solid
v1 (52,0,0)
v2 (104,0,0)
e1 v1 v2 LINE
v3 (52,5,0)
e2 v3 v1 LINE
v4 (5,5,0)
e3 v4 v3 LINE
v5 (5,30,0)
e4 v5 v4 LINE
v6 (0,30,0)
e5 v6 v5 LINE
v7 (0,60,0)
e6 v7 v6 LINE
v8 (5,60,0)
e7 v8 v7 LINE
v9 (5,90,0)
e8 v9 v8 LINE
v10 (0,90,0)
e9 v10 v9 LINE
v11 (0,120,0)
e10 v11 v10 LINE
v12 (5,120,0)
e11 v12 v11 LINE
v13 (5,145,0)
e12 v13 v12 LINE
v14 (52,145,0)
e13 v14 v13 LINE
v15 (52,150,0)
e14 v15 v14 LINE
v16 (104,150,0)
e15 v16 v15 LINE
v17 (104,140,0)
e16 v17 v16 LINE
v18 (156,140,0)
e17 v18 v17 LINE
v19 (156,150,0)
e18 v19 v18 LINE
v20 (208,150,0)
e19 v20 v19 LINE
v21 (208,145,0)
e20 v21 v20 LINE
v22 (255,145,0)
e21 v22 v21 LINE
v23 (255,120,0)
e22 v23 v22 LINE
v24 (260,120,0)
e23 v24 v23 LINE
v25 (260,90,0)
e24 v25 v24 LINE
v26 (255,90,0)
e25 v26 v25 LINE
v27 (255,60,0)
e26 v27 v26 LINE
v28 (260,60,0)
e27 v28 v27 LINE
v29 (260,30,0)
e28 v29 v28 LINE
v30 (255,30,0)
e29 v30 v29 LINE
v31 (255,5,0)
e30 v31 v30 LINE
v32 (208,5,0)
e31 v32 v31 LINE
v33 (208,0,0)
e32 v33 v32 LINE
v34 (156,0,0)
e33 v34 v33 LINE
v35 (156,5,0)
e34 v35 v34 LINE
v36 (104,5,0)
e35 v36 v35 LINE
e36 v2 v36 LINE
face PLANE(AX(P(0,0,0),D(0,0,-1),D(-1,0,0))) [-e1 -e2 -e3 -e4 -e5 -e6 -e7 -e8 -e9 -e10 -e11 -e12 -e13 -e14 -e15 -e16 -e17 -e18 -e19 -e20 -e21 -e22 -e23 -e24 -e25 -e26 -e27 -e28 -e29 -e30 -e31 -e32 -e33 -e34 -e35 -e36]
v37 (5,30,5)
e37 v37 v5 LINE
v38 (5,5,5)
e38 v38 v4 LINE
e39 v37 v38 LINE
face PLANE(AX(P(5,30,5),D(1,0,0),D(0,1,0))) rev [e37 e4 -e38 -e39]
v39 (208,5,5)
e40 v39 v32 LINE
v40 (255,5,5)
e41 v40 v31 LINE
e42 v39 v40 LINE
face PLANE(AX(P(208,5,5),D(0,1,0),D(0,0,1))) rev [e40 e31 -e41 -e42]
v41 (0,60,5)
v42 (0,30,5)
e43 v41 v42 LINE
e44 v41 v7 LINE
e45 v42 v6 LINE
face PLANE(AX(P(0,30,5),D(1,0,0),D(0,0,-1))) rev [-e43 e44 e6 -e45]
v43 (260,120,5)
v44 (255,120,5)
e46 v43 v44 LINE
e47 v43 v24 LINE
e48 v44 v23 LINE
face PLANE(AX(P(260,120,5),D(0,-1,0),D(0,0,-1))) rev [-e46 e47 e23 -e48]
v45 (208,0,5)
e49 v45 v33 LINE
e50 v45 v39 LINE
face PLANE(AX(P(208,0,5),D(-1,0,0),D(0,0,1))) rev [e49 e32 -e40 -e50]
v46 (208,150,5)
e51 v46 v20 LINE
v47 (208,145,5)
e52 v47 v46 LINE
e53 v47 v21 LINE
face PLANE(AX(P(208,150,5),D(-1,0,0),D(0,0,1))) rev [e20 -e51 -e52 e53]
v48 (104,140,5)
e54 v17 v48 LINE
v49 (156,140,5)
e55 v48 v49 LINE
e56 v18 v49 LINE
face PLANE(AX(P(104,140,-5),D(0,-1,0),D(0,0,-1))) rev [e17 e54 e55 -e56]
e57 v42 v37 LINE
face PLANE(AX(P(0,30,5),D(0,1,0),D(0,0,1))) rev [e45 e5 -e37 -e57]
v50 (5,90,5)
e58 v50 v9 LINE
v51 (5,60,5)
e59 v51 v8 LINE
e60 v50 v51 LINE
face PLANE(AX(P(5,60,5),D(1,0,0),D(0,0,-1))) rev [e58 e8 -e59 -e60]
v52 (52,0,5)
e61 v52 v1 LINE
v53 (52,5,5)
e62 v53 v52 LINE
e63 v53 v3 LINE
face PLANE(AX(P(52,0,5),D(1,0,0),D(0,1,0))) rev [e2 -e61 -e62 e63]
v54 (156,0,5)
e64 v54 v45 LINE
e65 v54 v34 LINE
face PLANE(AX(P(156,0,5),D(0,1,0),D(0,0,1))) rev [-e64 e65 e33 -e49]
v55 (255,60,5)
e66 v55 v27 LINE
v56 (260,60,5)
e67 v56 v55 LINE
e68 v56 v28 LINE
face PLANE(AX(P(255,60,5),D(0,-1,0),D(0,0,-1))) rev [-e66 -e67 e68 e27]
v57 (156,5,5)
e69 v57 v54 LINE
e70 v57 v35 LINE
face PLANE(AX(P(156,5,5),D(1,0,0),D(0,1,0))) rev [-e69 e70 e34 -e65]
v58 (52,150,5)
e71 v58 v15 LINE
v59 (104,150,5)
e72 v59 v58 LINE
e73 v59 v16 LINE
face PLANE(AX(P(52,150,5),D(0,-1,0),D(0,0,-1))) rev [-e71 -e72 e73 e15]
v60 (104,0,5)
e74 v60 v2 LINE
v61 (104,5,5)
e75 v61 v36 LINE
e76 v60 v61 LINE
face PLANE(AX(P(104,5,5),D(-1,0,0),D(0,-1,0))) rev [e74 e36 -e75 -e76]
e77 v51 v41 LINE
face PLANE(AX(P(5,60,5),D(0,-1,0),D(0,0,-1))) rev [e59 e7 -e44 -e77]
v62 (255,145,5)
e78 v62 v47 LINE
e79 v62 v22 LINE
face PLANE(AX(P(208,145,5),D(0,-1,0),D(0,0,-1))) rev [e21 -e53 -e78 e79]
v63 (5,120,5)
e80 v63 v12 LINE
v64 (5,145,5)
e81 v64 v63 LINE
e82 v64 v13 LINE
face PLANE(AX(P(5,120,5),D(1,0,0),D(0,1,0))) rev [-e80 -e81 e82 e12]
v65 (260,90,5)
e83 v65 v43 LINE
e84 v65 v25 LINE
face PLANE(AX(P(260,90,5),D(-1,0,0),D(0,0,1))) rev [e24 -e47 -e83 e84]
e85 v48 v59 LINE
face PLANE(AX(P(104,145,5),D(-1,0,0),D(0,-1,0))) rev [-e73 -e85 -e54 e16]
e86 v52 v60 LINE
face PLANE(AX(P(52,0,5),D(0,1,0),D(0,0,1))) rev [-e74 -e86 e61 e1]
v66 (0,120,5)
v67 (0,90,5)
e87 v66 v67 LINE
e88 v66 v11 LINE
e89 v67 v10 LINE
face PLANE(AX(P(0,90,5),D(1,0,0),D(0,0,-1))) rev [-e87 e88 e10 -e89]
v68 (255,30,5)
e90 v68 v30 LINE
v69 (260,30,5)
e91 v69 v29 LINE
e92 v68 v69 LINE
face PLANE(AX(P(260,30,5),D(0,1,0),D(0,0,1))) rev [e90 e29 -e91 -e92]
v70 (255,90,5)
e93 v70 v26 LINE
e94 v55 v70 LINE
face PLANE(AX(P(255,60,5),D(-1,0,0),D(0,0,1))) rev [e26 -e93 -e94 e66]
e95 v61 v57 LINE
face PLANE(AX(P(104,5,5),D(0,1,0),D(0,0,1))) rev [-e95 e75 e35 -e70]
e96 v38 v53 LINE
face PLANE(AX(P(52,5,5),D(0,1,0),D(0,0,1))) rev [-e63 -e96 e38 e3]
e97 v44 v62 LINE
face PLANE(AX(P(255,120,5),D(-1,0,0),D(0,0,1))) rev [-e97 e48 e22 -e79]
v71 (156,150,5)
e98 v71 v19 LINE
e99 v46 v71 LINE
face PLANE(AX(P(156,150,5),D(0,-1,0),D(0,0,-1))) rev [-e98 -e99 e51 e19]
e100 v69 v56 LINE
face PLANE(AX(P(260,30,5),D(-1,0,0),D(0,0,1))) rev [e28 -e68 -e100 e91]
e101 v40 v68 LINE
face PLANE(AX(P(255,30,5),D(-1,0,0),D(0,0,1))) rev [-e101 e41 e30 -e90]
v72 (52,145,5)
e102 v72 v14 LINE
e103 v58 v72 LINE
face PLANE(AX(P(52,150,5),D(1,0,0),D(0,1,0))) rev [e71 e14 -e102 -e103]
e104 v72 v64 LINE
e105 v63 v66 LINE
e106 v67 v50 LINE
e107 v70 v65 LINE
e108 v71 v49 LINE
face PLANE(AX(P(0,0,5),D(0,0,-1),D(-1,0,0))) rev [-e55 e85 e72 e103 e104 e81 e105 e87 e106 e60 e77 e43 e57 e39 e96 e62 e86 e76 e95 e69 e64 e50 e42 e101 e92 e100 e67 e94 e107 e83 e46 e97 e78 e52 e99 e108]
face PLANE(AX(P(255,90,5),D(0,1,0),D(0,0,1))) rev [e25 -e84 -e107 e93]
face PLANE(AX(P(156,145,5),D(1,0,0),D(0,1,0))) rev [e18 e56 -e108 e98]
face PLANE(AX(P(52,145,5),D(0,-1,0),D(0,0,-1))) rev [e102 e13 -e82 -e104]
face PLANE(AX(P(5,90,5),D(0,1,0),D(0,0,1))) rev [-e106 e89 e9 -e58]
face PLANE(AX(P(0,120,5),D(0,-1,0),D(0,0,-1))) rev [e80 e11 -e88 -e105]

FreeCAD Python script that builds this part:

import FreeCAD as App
import Part
import Sketcher

V = App.Vector

doc = App.newDocument("Part")
body = doc.addObject("PartDesign::Body", "Body")

sketch1 = body.newObject("Sketcher::SketchObject", "Sketch")
sketch1.AttachmentSupport = (doc.getObject("XY_Plane"), [""])
sketch1.MapMode = "FlatFace"
sketch1.addGeometry(Part.LineSegment(V(52, 0, 0), V(104, 0, 0)), False)
sketch1.addGeometry(Part.LineSegment(V(104, 0, 0), V(104, 5, 0)), False)
sketch1.addGeometry(Part.LineSegment(V(104, 5, 0), V(156, 5, 0)), False)
sketch1.addGeometry(Part.LineSegment(V(156, 5, 0), V(156, 0, 0)), False)
sketch1.addGeometry(Part.LineSegment(V(156, 0, 0), V(208, 0, 0)), False)
sketch1.addGeometry(Part.LineSegment(V(208, 0, 0), V(208, 5, 0)), False)
sketch1.addGeometry(Part.LineSegment(V(208, 5, 0), V(255, 5, 0)), False)
sketch1.addGeometry(Part.LineSegment(V(255, 5, 0), V(255, 30, 0)), False)
sketch1.addGeometry(Part.LineSegment(V(255, 30, 0), V(260, 30, 0)), False)
sketch1.addGeometry(Part.LineSegment(V(260, 30, 0), V(260, 60, 0)), False)
sketch1.addGeometry(Part.LineSegment(V(260, 60, 0), V(255, 60, 0)), False)
sketch1.addGeometry(Part.LineSegment(V(255, 60, 0), V(255, 90, 0)), False)
sketch1.addGeometry(Part.LineSegment(V(255, 90, 0), V(260, 90, 0)), False)
sketch1.addGeometry(Part.LineSegment(V(260, 90, 0), V(260, 120, 0)), False)
sketch1.addGeometry(Part.LineSegment(V(260, 120, 0), V(255, 120, 0)), False)
sketch1.addGeometry(Part.LineSegment(V(255, 120, 0), V(255, 145, 0)), False)
sketch1.addGeometry(Part.LineSegment(V(255, 145, 0), V(208, 145, 0)), False)
sketch1.addGeometry(Part.LineSegment(V(208, 145, 0), V(208, 150, 0)), False)
sketch1.addGeometry(Part.LineSegment(V(208, 150, 0), V(156, 150, 0)), False)
sketch1.addGeometry(Part.LineSegment(V(156, 150, 0), V(156, 145, 0)), False)
sketch1.addGeometry(Part.LineSegment(V(156, 145, 0), V(104, 145, 0)), False)
sketch1.addGeometry(Part.LineSegment(V(104, 145, 0), V(104, 150, 0)), False)
sketch1.addGeometry(Part.LineSegment(V(104, 150, 0), V(52, 150, 0)), False)
sketch1.addGeometry(Part.LineSegment(V(52, 150, 0), V(52, 145, 0)), False)
sketch1.addGeometry(Part.LineSegment(V(52, 145, 0), V(5, 145, 0)), False)
sketch1.addGeometry(Part.LineSegment(V(5, 145, 0), V(5, 120, 0)), False)
sketch1.addGeometry(Part.LineSegment(V(5, 120, 0), V(0, 120, 0)), False)
sketch1.addGeometry(Part.LineSegment(V(0, 120, 0), V(0, 90, 0)), False)
sketch1.addGeometry(Part.LineSegment(V(0, 90, 0), V(5, 90, 0)), False)
sketch1.addGeometry(Part.LineSegment(V(5, 90, 0), V(5, 60, 0)), False)
sketch1.addGeometry(Part.LineSegment(V(5, 60, 0), V(0, 60, 0)), False)
sketch1.addGeometry(Part.LineSegment(V(0, 60, 0), V(0, 30, 0)), False)
sketch1.addGeometry(Part.LineSegment(V(0, 30, 0), V(5, 30, 0)), False)
sketch1.addGeometry(Part.LineSegment(V(5, 30, 0), V(5, 5, 0)), False)
sketch1.addGeometry(Part.LineSegment(V(5, 5, 0), V(52, 5, 0)), False)
sketch1.addGeometry(Part.LineSegment(V(52, 5, 0), V(52, 0, 0)), False)
sketch1.addConstraint(Sketcher.Constraint("Coincident", 0, 2, 1, 1))
sketch1.addConstraint(Sketcher.Constraint("Coincident", 1, 2, 2, 1))
sketch1.addConstraint(Sketcher.Constraint("Coincident", 2, 2, 3, 1))
sketch1.addConstraint(Sketcher.Constraint("Coincident", 3, 2, 4, 1))
sketch1.addConstraint(Sketcher.Constraint("Coincident", 4, 2, 5, 1))
sketch1.addConstraint(Sketcher.Constraint("Coincident", 5, 2, 6, 1))
sketch1.addConstraint(Sketcher.Constraint("Coincident", 6, 2, 7, 1))
sketch1.addConstraint(Sketcher.Constraint("Coincident", 7, 2, 8, 1))
sketch1.addConstraint(Sketcher.Constraint("Coincident", 8, 2, 9, 1))
sketch1.addConstraint(Sketcher.Constraint("Coincident", 9, 2, 10, 1))
sketch1.addConstraint(Sketcher.Constraint("Coincident", 10, 2, 11, 1))
sketch1.addConstraint(Sketcher.Constraint("Coincident", 11, 2, 12, 1))
sketch1.addConstraint(Sketcher.Constraint("Coincident", 12, 2, 13, 1))
sketch1.addConstraint(Sketcher.Constraint("Coincident", 13, 2, 14, 1))
sketch1.addConstraint(Sketcher.Constraint("Coincident", 14, 2, 15, 1))
sketch1.addConstraint(Sketcher.Constraint("Coincident", 15, 2, 16, 1))
sketch1.addConstraint(Sketcher.Constraint("Coincident", 16, 2, 17, 1))
sketch1.addConstraint(Sketcher.Constraint("Coincident", 17, 2, 18, 1))
sketch1.addConstraint(Sketcher.Constraint("Coincident", 18, 2, 19, 1))
sketch1.addConstraint(Sketcher.Constraint("Coincident", 19, 2, 20, 1))
sketch1.addConstraint(Sketcher.Constraint("Coincident", 20, 2, 21, 1))
sketch1.addConstraint(Sketcher.Constraint("Coincident", 21, 2, 22, 1))
sketch1.addConstraint(Sketcher.Constraint("Coincident", 22, 2, 23, 1))
sketch1.addConstraint(Sketcher.Constraint("Coincident", 23, 2, 24, 1))
sketch1.addConstraint(Sketcher.Constraint("Coincident", 24, 2, 25, 1))
sketch1.addConstraint(Sketcher.Constraint("Coincident", 25, 2, 26, 1))
sketch1.addConstraint(Sketcher.Constraint("Coincident", 26, 2, 27, 1))
sketch1.addConstraint(Sketcher.Constraint("Coincident", 27, 2, 28, 1))
sketch1.addConstraint(Sketcher.Constraint("Coincident", 28, 2, 29, 1))
sketch1.addConstraint(Sketcher.Constraint("Coincident", 29, 2, 30, 1))
sketch1.addConstraint(Sketcher.Constraint("Coincident", 30, 2, 31, 1))
sketch1.addConstraint(Sketcher.Constraint("Coincident", 31, 2, 32, 1))
sketch1.addConstraint(Sketcher.Constraint("Coincident", 32, 2, 33, 1))
sketch1.addConstraint(Sketcher.Constraint("Coincident", 33, 2, 34, 1))
sketch1.addConstraint(Sketcher.Constraint("Coincident", 34, 2, 35, 1))
sketch1.addConstraint(Sketcher.Constraint("Coincident", 35, 2, 0, 1))
sketch1.addConstraint(Sketcher.Constraint("Horizontal", 0))
sketch1.addConstraint(Sketcher.Constraint("Vertical", 1))
sketch1.addConstraint(Sketcher.Constraint("Horizontal", 2))
sketch1.addConstraint(Sketcher.Constraint("Vertical", 3))
sketch1.addConstraint(Sketcher.Constraint("Horizontal", 4))
sketch1.addConstraint(Sketcher.Constraint("Vertical", 5))
sketch1.addConstraint(Sketcher.Constraint("Horizontal", 6))
sketch1.addConstraint(Sketcher.Constraint("Vertical", 7))
sketch1.addConstraint(Sketcher.Constraint("Horizontal", 8))
sketch1.addConstraint(Sketcher.Constraint("Vertical", 9))
sketch1.addConstraint(Sketcher.Constraint("Horizontal", 10))
sketch1.addConstraint(Sketcher.Constraint("Vertical", 11))
sketch1.addConstraint(Sketcher.Constraint("Horizontal", 12))
sketch1.addConstraint(Sketcher.Constraint("Vertical", 13))
sketch1.addConstraint(Sketcher.Constraint("Horizontal", 14))
sketch1.addConstraint(Sketcher.Constraint("Vertical", 15))
sketch1.addConstraint(Sketcher.Constraint("Horizontal", 16))
sketch1.addConstraint(Sketcher.Constraint("Vertical", 17))
sketch1.addConstraint(Sketcher.Constraint("Horizontal", 18))
sketch1.addConstraint(Sketcher.Constraint("Vertical", 19))
sketch1.addConstraint(Sketcher.Constraint("Horizontal", 20))
sketch1.addConstraint(Sketcher.Constraint("Vertical", 21))
sketch1.addConstraint(Sketcher.Constraint("Horizontal", 22))
sketch1.addConstraint(Sketcher.Constraint("Vertical", 23))
sketch1.addConstraint(Sketcher.Constraint("Horizontal", 24))
sketch1.addConstraint(Sketcher.Constraint("Vertical", 25))
sketch1.addConstraint(Sketcher.Constraint("Horizontal", 26))
sketch1.addConstraint(Sketcher.Constraint("Vertical", 27))
sketch1.addConstraint(Sketcher.Constraint("Horizontal", 28))
sketch1.addConstraint(Sketcher.Constraint("Vertical", 29))
sketch1.addConstraint(Sketcher.Constraint("Horizontal", 30))
sketch1.addConstraint(Sketcher.Constraint("Vertical", 31))
sketch1.addConstraint(Sketcher.Constraint("Horizontal", 32))
sketch1.addConstraint(Sketcher.Constraint("Vertical", 33))
sketch1.addConstraint(Sketcher.Constraint("Horizontal", 34))
sketch1.addConstraint(Sketcher.Constraint("Vertical", 35))
sketch1.addConstraint(Sketcher.Constraint("PointOnObject", 0, 2, -1))
sketch1.addConstraint(Sketcher.Constraint("PointOnObject", 3, 2, -1))
sketch1.addConstraint(Sketcher.Constraint("PointOnObject", 26, 2, -2))
sketch1.addConstraint(Sketcher.Constraint("PointOnObject", 30, 2, -2))
sketch1.addConstraint(Sketcher.Constraint("Horizontal", 2, 2, 5, 2))
sketch1.addConstraint(Sketcher.Constraint("Horizontal", 16, 2, 19, 2))
sketch1.addConstraint(Sketcher.Constraint("Horizontal", 18, 2, 21, 2))
sketch1.addConstraint(Sketcher.Constraint("Horizontal", 20, 2, 23, 2))
sketch1.addConstraint(Sketcher.Constraint("Horizontal", 14, 2, 25, 2))
sketch1.addConstraint(Sketcher.Constraint("Horizontal", 12, 2, 27, 2))
sketch1.addConstraint(Sketcher.Constraint("Horizontal", 10, 2, 29, 2))
sketch1.addConstraint(Sketcher.Constraint("Horizontal", 8, 2, 31, 2))
sketch1.addConstraint(Sketcher.Constraint("Horizontal", 6, 2, 33, 2))
sketch1.addConstraint(Sketcher.Constraint("Vertical", 7, 2, 10, 2))
sketch1.addConstraint(Sketcher.Constraint("Vertical", 9, 2, 12, 2))
sketch1.addConstraint(Sketcher.Constraint("Vertical", 11, 2, 14, 2))
sketch1.addConstraint(Sketcher.Constraint("Vertical", 5, 2, 16, 2))
sketch1.addConstraint(Sketcher.Constraint("Vertical", 3, 2, 18, 2))
sketch1.addConstraint(Sketcher.Constraint("Vertical", 1, 2, 20, 2))
sketch1.addConstraint(Sketcher.Constraint("Vertical", 25, 2, 28, 2))
sketch1.addConstraint(Sketcher.Constraint("Vertical", 29, 2, 32, 2))
sketch1.addConstraint(Sketcher.Constraint("Vertical", 23, 2, 34, 2))
sketch1.addConstraint(Sketcher.Constraint("Equal", 0, 2))
sketch1.addConstraint(Sketcher.Constraint("Equal", 2, 4))
sketch1.addConstraint(Sketcher.Constraint("Equal", 16, 24))
sketch1.addConstraint(Sketcher.Constraint("Equal", 14, 26))
sketch1.addConstraint(Sketcher.Constraint("Equal", 32, 1))
sketch1.addConstraint(Sketcher.Constraint("Equal", 9, 11))
sketch1.addConstraint(Sketcher.Constraint("Equal", 11, 13))
sketch1.addConstraint(Sketcher.Constraint("Equal", 7, 15))
sketch1.addConstraint(Sketcher.Constraint("Equal", 5, 17))
sketch1.addConstraint(Sketcher.Constraint("DistanceX", 0, 1, 0, 2, 52.0))
sketch1.addConstraint(Sketcher.Constraint("DistanceX", 6, 1, 6, 2, 47.0))
sketch1.addConstraint(Sketcher.Constraint("DistanceX", 8, 1, 8, 2, 5.0))
sketch1.addConstraint(Sketcher.Constraint("DistanceY", 7, 1, 7, 2, 25.0))
sketch1.addConstraint(Sketcher.Constraint("DistanceY", 9, 1, 9, 2, 30.0))
pad1 = body.newObject("PartDesign::Pad", "Pad")
pad1.Profile = sketch1
pad1.Length = 5

sketch2 = body.newObject("Sketcher::SketchObject", "Sketch001")
sketch2.AttachmentSupport = (doc.getObject("XY_Plane"), [""])
sketch2.MapMode = "FlatFace"
sketch2.AttachmentOffset = App.Placement(V(0, 0, 5), App.Rotation())
sketch2.addGeometry(Part.LineSegment(V(104, 145, 0), V(104, 140, 0)), False)
sketch2.addGeometry(Part.LineSegment(V(104, 140, 0), V(156, 140, 0)), False)
sketch2.addGeometry(Part.LineSegment(V(156, 140, 0), V(156, 145, 0)), False)
sketch2.addGeometry(Part.LineSegment(V(156, 145, 0), V(104, 145, 0)), False)
sketch2.addConstraint(Sketcher.Constraint("Coincident", 0, 2, 1, 1))
sketch2.addConstraint(Sketcher.Constraint("Coincident", 1, 2, 2, 1))
sketch2.addConstraint(Sketcher.Constraint("Coincident", 2, 2, 3, 1))
sketch2.addConstraint(Sketcher.Constraint("Coincident", 3, 2, 0, 1))
sketch2.addConstraint(Sketcher.Constraint("Vertical", 0))
sketch2.addConstraint(Sketcher.Constraint("Horizontal", 1))
sketch2.addConstraint(Sketcher.Constraint("Vertical", 2))
sketch2.addConstraint(Sketcher.Constraint("Horizontal", 3))
sketch2.addConstraint(Sketcher.Constraint("DistanceX", 1, 1, 1, 2, 52.0))
sketch2.addConstraint(Sketcher.Constraint("DistanceY", 0, 2, 0, 1, 5.0))
sketch2.addConstraint(Sketcher.Constraint("DistanceX", -1, 1, 0, 2, 104.0))
sketch2.addConstraint(Sketcher.Constraint("DistanceY", -1, 1, 0, 2, 140.0))
pocket1 = body.newObject("PartDesign::Pocket", "Pocket")
pocket1.Profile = sketch2
pocket1.Length = 10

doc.recompute()
